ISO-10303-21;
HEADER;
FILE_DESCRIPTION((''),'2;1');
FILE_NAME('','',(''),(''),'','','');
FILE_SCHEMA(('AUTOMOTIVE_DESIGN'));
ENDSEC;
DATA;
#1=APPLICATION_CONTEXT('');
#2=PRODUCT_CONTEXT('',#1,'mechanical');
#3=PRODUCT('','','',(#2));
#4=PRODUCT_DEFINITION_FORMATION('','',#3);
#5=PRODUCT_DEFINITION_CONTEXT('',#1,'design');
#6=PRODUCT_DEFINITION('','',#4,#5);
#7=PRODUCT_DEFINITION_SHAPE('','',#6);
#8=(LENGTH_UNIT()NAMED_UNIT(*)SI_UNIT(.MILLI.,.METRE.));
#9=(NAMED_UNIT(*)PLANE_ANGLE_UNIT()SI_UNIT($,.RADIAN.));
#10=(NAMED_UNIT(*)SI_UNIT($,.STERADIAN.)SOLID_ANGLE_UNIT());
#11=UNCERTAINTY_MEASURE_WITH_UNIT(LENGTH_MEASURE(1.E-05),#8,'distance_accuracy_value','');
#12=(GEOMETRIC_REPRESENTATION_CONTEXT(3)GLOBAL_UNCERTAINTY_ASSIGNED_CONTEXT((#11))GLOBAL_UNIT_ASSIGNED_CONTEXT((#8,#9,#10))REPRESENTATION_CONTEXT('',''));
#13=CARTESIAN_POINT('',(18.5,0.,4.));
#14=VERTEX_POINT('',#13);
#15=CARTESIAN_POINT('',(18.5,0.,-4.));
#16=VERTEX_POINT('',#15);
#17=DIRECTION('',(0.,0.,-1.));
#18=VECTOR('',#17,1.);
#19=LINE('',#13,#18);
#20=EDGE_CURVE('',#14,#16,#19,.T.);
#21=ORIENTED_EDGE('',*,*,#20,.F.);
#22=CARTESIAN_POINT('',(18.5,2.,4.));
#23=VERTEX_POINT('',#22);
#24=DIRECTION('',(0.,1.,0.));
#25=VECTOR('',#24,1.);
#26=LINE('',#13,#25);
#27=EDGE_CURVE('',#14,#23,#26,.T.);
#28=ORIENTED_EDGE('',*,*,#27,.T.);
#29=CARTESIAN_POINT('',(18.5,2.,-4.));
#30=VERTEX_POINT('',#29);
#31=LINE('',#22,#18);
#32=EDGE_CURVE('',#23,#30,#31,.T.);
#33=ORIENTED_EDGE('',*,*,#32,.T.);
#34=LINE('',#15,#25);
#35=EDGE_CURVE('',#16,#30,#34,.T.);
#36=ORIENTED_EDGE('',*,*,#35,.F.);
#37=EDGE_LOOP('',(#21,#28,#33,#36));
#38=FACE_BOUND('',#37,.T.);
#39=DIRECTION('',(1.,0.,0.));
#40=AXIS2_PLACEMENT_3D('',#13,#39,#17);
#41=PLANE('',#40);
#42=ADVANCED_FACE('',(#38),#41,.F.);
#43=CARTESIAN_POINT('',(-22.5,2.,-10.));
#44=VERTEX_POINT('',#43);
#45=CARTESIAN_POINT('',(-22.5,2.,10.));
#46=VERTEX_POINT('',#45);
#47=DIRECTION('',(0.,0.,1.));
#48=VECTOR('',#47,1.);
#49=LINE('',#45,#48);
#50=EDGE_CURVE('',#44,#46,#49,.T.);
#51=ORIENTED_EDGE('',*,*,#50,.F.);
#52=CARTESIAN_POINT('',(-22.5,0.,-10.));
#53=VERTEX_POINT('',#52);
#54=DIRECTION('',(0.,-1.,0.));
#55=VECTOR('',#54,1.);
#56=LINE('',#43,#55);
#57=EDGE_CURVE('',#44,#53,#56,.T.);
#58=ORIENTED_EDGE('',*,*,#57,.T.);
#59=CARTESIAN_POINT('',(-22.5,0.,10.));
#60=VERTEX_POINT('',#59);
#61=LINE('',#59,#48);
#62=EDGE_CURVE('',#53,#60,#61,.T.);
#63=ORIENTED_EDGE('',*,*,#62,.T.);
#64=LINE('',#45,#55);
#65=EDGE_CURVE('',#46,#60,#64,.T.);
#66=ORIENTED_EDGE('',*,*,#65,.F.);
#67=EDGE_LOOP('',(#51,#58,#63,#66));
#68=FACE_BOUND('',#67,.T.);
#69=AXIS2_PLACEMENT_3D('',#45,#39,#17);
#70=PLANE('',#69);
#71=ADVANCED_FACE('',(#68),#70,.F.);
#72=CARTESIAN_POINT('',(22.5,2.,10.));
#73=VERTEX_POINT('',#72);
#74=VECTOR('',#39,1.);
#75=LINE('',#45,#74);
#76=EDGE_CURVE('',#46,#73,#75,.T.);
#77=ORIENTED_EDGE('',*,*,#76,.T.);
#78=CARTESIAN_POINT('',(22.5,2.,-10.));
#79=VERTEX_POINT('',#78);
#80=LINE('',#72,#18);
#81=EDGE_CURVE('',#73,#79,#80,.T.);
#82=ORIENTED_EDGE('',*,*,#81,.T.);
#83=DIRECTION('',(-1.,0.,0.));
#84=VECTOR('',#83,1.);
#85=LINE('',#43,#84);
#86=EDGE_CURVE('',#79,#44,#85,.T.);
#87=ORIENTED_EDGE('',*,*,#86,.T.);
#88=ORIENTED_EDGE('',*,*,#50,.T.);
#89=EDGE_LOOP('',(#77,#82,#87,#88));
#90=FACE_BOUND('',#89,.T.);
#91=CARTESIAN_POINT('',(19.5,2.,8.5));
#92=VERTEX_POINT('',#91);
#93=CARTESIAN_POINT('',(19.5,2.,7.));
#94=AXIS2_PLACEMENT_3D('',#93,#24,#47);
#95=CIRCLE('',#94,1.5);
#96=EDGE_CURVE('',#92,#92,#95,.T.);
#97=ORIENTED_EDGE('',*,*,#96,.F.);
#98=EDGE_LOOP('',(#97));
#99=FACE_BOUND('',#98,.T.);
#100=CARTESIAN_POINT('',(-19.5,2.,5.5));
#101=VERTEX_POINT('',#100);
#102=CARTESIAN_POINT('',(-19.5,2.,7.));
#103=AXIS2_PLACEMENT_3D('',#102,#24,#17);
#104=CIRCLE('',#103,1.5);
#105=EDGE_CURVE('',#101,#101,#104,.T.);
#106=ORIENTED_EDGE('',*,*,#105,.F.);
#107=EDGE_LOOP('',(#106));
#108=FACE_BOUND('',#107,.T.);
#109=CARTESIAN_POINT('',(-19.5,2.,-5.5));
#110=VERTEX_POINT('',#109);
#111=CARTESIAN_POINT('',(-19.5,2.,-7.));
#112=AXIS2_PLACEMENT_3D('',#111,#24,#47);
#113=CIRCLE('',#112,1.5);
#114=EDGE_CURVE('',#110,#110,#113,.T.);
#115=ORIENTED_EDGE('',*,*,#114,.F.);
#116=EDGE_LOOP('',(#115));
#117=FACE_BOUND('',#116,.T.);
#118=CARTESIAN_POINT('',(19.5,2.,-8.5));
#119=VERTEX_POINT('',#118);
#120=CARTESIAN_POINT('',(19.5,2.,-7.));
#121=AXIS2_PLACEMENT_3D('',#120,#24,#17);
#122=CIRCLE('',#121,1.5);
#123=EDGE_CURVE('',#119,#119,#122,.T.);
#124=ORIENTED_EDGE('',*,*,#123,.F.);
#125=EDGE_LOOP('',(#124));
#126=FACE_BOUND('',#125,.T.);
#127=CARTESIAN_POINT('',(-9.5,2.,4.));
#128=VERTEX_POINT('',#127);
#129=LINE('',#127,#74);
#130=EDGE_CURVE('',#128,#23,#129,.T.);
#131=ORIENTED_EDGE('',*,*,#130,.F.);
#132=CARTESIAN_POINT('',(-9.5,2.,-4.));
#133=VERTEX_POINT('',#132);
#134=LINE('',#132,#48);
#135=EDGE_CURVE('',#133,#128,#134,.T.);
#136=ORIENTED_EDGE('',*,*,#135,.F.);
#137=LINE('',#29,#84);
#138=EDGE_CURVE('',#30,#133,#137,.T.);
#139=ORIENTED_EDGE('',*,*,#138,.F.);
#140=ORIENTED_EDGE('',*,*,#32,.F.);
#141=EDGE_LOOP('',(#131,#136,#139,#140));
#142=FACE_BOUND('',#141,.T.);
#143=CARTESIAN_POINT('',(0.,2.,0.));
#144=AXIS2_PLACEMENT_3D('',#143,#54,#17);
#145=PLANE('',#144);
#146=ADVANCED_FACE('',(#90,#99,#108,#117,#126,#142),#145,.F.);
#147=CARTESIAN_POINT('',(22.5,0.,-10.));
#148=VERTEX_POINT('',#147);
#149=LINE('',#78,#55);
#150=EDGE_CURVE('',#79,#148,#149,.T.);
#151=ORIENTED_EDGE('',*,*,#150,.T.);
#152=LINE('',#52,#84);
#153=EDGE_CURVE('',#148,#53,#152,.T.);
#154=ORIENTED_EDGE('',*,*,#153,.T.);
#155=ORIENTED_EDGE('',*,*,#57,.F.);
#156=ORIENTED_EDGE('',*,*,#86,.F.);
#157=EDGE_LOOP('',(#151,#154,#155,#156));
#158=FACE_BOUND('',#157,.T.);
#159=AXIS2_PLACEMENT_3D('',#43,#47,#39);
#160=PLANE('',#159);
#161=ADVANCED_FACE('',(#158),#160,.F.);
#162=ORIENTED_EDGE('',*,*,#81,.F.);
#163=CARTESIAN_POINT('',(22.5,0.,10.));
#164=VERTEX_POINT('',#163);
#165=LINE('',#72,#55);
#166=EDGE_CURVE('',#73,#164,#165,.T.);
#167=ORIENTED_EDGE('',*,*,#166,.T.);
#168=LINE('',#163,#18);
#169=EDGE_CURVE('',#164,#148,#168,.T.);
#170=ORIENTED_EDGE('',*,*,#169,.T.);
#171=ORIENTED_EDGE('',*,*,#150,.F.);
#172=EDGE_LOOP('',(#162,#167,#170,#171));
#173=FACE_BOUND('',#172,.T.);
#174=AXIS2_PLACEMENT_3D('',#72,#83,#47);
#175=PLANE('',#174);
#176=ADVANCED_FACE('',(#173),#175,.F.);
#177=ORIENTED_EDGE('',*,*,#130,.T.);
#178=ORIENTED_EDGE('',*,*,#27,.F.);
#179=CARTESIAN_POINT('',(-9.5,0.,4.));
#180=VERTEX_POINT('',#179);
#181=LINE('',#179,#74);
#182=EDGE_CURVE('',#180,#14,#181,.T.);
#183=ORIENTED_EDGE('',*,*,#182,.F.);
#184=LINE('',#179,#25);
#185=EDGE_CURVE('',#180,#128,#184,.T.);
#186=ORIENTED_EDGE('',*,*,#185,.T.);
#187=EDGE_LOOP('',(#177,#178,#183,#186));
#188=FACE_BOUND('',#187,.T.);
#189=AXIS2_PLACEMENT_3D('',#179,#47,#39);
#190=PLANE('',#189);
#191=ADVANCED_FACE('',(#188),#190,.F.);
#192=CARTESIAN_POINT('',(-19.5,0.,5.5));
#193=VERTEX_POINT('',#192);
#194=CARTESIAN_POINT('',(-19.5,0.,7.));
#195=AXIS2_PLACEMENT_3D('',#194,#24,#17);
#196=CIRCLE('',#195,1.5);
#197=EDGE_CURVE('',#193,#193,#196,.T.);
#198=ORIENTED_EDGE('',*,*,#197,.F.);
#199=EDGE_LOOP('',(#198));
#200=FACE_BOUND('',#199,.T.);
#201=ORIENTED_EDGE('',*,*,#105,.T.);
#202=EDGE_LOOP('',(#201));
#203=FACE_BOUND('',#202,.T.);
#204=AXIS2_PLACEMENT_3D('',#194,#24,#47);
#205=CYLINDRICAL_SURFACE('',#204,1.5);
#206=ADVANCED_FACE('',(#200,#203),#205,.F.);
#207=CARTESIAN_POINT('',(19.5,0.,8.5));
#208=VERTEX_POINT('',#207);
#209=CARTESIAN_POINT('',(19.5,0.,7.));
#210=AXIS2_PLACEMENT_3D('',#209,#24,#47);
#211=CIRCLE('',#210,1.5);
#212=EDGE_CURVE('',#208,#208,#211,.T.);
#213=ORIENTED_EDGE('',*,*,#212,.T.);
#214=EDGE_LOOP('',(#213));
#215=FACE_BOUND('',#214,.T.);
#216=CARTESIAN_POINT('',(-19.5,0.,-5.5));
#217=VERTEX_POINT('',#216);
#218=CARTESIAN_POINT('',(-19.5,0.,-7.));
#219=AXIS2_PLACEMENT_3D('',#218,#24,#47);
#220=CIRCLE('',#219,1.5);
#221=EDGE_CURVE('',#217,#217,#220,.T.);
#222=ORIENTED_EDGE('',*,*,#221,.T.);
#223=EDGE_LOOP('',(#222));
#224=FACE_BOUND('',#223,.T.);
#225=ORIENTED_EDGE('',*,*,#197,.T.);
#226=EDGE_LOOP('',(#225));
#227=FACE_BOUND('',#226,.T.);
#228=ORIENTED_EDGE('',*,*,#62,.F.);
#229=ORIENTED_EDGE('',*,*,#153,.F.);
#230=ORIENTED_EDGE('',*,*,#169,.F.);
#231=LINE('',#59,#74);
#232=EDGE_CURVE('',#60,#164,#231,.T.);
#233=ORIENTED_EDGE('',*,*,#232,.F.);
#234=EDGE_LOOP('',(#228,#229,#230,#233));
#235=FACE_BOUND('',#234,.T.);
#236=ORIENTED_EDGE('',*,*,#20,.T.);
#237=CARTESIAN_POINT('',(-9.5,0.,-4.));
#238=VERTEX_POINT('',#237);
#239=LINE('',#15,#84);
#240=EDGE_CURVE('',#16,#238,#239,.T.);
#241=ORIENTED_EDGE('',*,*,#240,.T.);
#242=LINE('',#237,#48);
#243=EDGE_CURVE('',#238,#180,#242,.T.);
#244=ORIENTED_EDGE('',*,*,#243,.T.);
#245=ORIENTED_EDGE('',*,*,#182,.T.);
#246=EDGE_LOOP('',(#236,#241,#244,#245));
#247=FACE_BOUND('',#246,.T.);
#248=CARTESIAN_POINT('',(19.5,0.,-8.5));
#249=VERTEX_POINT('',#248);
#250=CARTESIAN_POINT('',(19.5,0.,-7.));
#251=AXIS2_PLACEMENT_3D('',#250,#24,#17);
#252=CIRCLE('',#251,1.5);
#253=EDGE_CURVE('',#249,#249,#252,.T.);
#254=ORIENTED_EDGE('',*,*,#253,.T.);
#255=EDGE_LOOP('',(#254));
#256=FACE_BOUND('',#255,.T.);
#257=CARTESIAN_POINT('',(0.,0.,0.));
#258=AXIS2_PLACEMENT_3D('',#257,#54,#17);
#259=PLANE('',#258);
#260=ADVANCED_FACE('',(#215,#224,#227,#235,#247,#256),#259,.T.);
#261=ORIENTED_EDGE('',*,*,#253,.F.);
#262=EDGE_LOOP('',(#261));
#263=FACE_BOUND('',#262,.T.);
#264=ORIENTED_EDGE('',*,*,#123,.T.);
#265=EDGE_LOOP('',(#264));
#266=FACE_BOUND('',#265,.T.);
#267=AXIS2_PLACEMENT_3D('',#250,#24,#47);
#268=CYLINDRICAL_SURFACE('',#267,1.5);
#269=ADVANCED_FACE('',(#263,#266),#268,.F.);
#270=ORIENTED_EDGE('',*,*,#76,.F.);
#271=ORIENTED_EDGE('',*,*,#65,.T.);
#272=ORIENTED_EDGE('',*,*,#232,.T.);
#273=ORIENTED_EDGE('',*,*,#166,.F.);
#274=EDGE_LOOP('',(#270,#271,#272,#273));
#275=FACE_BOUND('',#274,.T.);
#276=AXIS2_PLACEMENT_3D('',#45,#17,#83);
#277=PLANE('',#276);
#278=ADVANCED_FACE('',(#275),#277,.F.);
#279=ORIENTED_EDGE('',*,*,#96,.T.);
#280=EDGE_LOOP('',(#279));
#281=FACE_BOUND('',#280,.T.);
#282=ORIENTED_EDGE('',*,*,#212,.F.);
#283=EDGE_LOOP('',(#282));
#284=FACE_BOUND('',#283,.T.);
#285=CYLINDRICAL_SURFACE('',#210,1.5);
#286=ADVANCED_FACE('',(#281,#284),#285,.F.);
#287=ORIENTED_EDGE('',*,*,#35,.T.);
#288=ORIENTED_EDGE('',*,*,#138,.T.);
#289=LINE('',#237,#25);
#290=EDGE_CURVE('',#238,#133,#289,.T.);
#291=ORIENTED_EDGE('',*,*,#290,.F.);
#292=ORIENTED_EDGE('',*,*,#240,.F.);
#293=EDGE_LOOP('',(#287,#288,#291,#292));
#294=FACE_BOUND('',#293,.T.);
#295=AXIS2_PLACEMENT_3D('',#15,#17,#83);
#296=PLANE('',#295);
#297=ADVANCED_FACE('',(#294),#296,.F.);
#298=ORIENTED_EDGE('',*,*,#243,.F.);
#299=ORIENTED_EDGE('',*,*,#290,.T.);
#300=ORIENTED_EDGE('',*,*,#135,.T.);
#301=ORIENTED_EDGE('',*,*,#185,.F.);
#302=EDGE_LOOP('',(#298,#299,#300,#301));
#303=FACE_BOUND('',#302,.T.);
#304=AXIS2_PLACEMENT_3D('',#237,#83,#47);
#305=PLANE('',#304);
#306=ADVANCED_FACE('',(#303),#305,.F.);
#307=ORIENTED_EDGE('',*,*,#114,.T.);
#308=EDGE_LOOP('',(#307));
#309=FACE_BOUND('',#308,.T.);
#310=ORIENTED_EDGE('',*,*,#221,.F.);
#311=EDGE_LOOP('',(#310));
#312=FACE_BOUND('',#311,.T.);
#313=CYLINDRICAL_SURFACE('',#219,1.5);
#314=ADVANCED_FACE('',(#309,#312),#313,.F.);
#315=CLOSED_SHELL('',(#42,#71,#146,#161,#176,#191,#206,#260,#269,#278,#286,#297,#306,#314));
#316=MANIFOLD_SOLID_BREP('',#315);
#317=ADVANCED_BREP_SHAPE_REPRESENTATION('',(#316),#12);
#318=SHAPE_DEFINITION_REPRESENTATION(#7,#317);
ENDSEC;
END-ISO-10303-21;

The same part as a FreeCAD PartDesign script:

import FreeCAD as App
import Part
import Sketcher

V = App.Vector
Q = App.Units.Quantity

doc = App.newDocument("Part")
body = doc.addObject("PartDesign::Body", "Body")

# Sketch on XZ plane
sketch1 = body.newObject("Sketcher::SketchObject", "Sketch")
sketch1.AttachmentSupport = (doc.getObject("XZ_Plane"), [""])
sketch1.MapMode = "FlatFace"
sketch1.addGeometry([
    Part.LineSegment(V(-22.5, -10, 0), V(-22.5, 10, 0)),
    Part.LineSegment(V(-22.5, 10, 0), V(22.5, 10, 0)),
    Part.LineSegment(V(22.5, 10, 0), V(22.5, -10, 0)),
    Part.LineSegment(V(22.5, -10, 0), V(-22.5, -10, 0)),
], False)
sketch1.addConstraint([
    Sketcher.Constraint("Coincident", 0, 2, 1, 1),
    Sketcher.Constraint("Coincident", 1, 2, 2, 1),
    Sketcher.Constraint("Coincident", 2, 2, 3, 1),
    Sketcher.Constraint("Coincident", 3, 2, 0, 1),
    Sketcher.Constraint("Vertical", 0),
    Sketcher.Constraint("Horizontal", 1),
    Sketcher.Constraint("Vertical", 2),
    Sketcher.Constraint("Horizontal", 3),
    Sketcher.Constraint("Symmetric", 0, 2, 2, 2, -1, 1),
    Sketcher.Constraint("DistanceX", 1, 1, 1, 2, Q("45 mm")),
    Sketcher.Constraint("DistanceY", 0, 1, 0, 2, Q("20 mm")),
])
pad1 = body.newObject("PartDesign::Pad", "Pad")
pad1.Profile = sketch1
pad1.Length = 2
pad1.Reversed = True

# Sketch on XZ plane
sketch2 = body.newObject("Sketcher::SketchObject", "Sketch001")
sketch2.AttachmentSupport = (doc.getObject("XZ_Plane"), [""])
sketch2.MapMode = "FlatFace"
sketch2.AttachmentOffset = App.Placement(V(0, 0, -2), App.Rotation())
sketch2.addGeometry([
    Part.Circle(V(-19.5, -7, 0), V(0, 0, 1), 1.5),
    Part.Circle(V(19.5, -7, 0), V(0, 0, 1), 1.5),
    Part.Circle(V(-19.5, 7, 0), V(0, 0, 1), 1.5),
    Part.Circle(V(19.5, 7, 0), V(0, 0, 1), 1.5),
], False)
sketch2.addConstraint([
    Sketcher.Constraint("Equal", 0, 1),
    Sketcher.Constraint("Equal", 1, 2),
    Sketcher.Constraint("Equal", 2, 3),
    Sketcher.Constraint("Symmetric", 1, 3, 2, 3, -1, 1),
    Sketcher.Constraint("Symmetric", 0, 3, 3, 3, -1, 1),
    Sketcher.Constraint("Symmetric", 0, 3, 1, 3, -2),
    Sketcher.Constraint("Diameter", 0, Q("3 mm")),
    Sketcher.Constraint("DistanceY", 0, 3, -1, 1, Q("7 mm")),
    Sketcher.Constraint("DistanceX", 0, 3, 1, 3, Q("39 mm")),
])
pocket1 = body.newObject("PartDesign::Pocket", "Pocket")
pocket1.Profile = sketch2
pocket1.Type = "ThroughAll"
pocket1.Reversed = True

# Sketch on XZ plane
sketch3 = body.newObject("Sketcher::SketchObject", "Sketch002")
sketch3.AttachmentSupport = (doc.getObject("XZ_Plane"), [""])
sketch3.MapMode = "FlatFace"
sketch3.AttachmentOffset = App.Placement(V(0, 0, -2), App.Rotation())
sketch3.addGeometry([
    Part.LineSegment(V(-9.5, -4, 0), V(-9.5, 4, 0)),
    Part.LineSegment(V(-9.5, 4, 0), V(18.5, 4, 0)),
    Part.LineSegment(V(18.5, 4, 0), V(18.5, -4, 0)),
    Part.LineSegment(V(18.5, -4, 0), V(-9.5, -4, 0)),
], False)
sketch3.addConstraint([
    Sketcher.Constraint("Coincident", 0, 2, 1, 1),
    Sketcher.Constraint("Coincident", 1, 2, 2, 1),
    Sketcher.Constraint("Coincident", 2, 2, 3, 1),
    Sketcher.Constraint("Coincident", 3, 2, 0, 1),
    Sketcher.Constraint("Vertical", 0),
    Sketcher.Constraint("Horizontal", 1),
    Sketcher.Constraint("Vertical", 2),
    Sketcher.Constraint("Horizontal", 3),
    Sketcher.Constraint("DistanceX", 1, 1, 1, 2, Q("28 mm")),
    Sketcher.Constraint("DistanceY", 0, 1, 0, 2, Q("8 mm")),
    Sketcher.Constraint("DistanceY", -1, 1, 0, 2, Q("4 mm")),
    Sketcher.Constraint("DistanceX", 0, 2, -1, 1, Q("9.5 mm")),
])
pocket2 = body.newObject("PartDesign::Pocket", "Pocket001")
pocket2.Profile = sketch3
pocket2.Type = "ThroughAll"
pocket2.Reversed = True

doc.recompute()
